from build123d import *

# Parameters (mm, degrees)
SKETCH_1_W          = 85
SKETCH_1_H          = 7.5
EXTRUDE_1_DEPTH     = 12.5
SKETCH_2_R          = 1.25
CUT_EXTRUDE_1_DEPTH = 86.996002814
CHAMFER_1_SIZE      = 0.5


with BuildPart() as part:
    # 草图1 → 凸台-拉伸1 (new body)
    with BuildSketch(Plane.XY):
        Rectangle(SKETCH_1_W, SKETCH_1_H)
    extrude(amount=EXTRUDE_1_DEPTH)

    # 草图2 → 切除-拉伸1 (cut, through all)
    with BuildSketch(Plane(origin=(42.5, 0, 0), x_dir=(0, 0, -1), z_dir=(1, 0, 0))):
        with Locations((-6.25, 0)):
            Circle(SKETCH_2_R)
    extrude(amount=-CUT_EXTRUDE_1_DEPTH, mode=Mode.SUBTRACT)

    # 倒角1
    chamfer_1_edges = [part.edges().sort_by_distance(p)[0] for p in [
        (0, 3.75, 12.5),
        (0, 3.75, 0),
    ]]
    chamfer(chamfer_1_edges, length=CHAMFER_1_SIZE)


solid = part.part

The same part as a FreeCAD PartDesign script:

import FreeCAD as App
import Part
import Sketcher
from FreeCAD import Vector
Q = App.Units.Quantity


def edges_at(feature, points):
    """Names of the edges that pass closest to the given points."""
    edges = feature.Shape.Edges
    near = lambda p: min(range(len(edges)), key=lambda i: edges[i].distToShape(Part.Vertex(*p))[0])
    return sorted({f"Edge{near(p) + 1}" for p in points})


def add_polygon(sketch, points):
    """Adds a closed chain of lines whose ends are joined by coincident constraints."""
    first, n = sketch.GeometryCount, len(points)
    for a, b in zip(points, points[1:] + points[:1]):
        sketch.addGeometry(Part.LineSegment(App.Vector(*a, 0), App.Vector(*b, 0)), False)
    for i in range(n):
        sketch.addConstraint(Sketcher.Constraint("Coincident", first + i, 2, first + (i + 1) % n, 1))

doc = App.newDocument("Part")
body = doc.addObject("PartDesign::Body", "Body")

# Sketch on XY plane
sketch1 = doc.addObject("Sketcher::SketchObject", "Sketch")
body.addObject(sketch1)
sketch1.AttachmentSupport = (doc.XY_Plane, [""])
sketch1.MapMode = "FlatFace"
add_polygon(sketch1, [(-42, 4), (-42, -4), (42, -4), (42, 4)])  # lines 0-3
sketch1.addConstraint([
    Sketcher.Constraint("Vertical", 0),
    Sketcher.Constraint("Horizontal", 1),
    Sketcher.Constraint("Vertical", 2),
    Sketcher.Constraint("Horizontal", 3),
    Sketcher.Constraint("Symmetric", 0, 2, 2, 2, -1, 1),
    Sketcher.Constraint("DistanceX", 1, 1, 1, 2, Q("85 mm")),
    Sketcher.Constraint("DistanceY", 0, 2, 0, 1, Q("7.5 mm")),
])
pad1 = doc.addObject("PartDesign::Pad", "Pad")
body.addObject(pad1)
pad1.Profile = sketch1
pad1.Length = 12.5

# Sketch on YZ plane
sketch2 = doc.addObject("Sketcher::SketchObject", "Sketch001")
body.addObject(sketch2)
sketch2.AttachmentSupport = (doc.YZ_Plane, [""])
sketch2.MapMode = "FlatFace"
sketch2.AttachmentOffset = App.Placement(Vector(0, 0, 42.5), App.Rotation())
sketch2.addGeometry(Part.Circle(Vector(0, 6.2, 0), Vector(0, 0, 1), 1.2), False)
sketch2.addConstraint([
    Sketcher.Constraint("PointOnObject", 0, 3, -2),
    Sketcher.Constraint("Diameter", 0, Q("2.5 mm")),
    Sketcher.Constraint("DistanceY", -1, 1, 0, 3, Q("6.25 mm")),
])
pocket1 = doc.addObject("PartDesign::Pocket", "Pocket")
body.addObject(pocket1)
pocket1.Profile = sketch2
pocket1.Type = "ThroughAll"
doc.recompute()

chamfer = doc.addObject("PartDesign::Chamfer", "Chamfer")
body.addObject(chamfer)
chamfer.Base = (pocket1, edges_at(pocket1, [(0, 3.75, 12.5), (0, 3.75, 0)]))
chamfer.Size = 0.5

doc.recompute()
